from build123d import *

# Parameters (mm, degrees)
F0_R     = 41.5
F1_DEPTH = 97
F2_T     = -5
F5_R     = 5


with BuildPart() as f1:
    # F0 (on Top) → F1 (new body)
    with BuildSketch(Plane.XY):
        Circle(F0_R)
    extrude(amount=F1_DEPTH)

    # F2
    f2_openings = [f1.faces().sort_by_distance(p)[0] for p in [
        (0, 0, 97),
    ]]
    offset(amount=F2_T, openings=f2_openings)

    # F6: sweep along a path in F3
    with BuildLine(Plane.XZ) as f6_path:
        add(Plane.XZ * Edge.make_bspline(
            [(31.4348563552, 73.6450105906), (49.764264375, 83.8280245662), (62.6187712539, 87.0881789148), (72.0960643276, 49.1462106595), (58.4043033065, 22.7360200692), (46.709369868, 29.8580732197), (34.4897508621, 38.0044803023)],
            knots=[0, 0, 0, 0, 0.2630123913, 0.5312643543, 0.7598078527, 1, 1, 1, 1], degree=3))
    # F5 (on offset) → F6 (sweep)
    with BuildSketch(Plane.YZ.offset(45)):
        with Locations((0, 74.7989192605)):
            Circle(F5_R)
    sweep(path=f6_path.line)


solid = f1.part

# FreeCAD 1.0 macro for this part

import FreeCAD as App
import Part
import Sketcher
Q = App.Units.Quantity


def faces_at(feature, points):
    """Names of the faces that lie closest to the given points."""
    faces = feature.Shape.Faces
    near = lambda p: min(range(len(faces)), key=lambda i: faces[i].distToShape(Part.Vertex(*p))[0])
    return sorted({f"Face{near(p) + 1}" for p in points})

doc = App.newDocument("Part")
body = doc.addObject("PartDesign::Body", "Body")

# Sketch on XY plane
sketch1 = body.newObject("Sketcher::SketchObject", "Sketch")
sketch1.AttachmentSupport = (doc.getObject("XY_Plane"), [""])
sketch1.MapMode = "FlatFace"
sketch1.addGeometry(Part.Circle(App.Vector(0, 0, 0), App.Vector(0, 0, 1), 42), False)
sketch1.addConstraint([
    Sketcher.Constraint("Coincident", 0, 3, -1, 1),
    Sketcher.Constraint("Diameter", 0, Q("83 mm")),
])
pad1 = body.newObject("PartDesign::Pad", "Pad")
pad1.Profile = sketch1
pad1.Length = 97
doc.recompute()

thickness = body.newObject("PartDesign::Thickness", "Thickness")
thickness.Base = (pad1, faces_at(pad1, [(0, 0, 97)]))
thickness.Value = 5
thickness.Reversed = True
thickness.Join = "Arc"

# Sketch on YZ plane
sketch2 = body.newObject("Sketcher::SketchObject", "Sketch001")
sketch2.AttachmentSupport = (doc.getObject("YZ_Plane"), [""])
sketch2.MapMode = "FlatFace"
sketch2.AttachmentOffset = App.Placement(App.Vector(0, 0, 45), App.Rotation())
sketch2.addGeometry(Part.Circle(App.Vector(0, 75, 0), App.Vector(0, 0, 1), 5), False)
sketch2.addConstraint([
    Sketcher.Constraint("PointOnObject", 0, 3, -2),
    Sketcher.Constraint("Diameter", 0, Q("10 mm")),
    Sketcher.Constraint("DistanceY", -1, 1, 0, 3, Q("74.798919 mm")),
])

# Sketch on XZ plane
sketch3 = body.newObject("Sketcher::SketchObject", "Sketch002")
sketch3.AttachmentSupport = (doc.getObject("XZ_Plane"), [""])
sketch3.MapMode = "FlatFace"
sketch3.addGeometry(Part.BSplineCurve([App.Vector(31.434856, 73.645011, 0), App.Vector(49.764264, 83.828025, 0), App.Vector(62.618771, 87.088179, 0), App.Vector(72.096064, 49.146211, 0), App.Vector(58.404303, 22.73602, 0), App.Vector(46.70937, 29.858073, 0), App.Vector(34.489751, 38.00448, 0)], [4, 1, 1, 1, 4], [0, 0.263012391, 0.531264354, 0.759807853, 1], False, 3, [1, 1, 1, 1, 1, 1, 1], False), False)
sketch3.addConstraint(Sketcher.Constraint("Block", 0))
doc.recompute()

additivepipe = body.newObject("PartDesign::AdditivePipe", "AdditivePipe")
additivepipe.Profile = sketch2
additivepipe.Spine = (sketch3, ["Edge1"])

doc.recompute()
